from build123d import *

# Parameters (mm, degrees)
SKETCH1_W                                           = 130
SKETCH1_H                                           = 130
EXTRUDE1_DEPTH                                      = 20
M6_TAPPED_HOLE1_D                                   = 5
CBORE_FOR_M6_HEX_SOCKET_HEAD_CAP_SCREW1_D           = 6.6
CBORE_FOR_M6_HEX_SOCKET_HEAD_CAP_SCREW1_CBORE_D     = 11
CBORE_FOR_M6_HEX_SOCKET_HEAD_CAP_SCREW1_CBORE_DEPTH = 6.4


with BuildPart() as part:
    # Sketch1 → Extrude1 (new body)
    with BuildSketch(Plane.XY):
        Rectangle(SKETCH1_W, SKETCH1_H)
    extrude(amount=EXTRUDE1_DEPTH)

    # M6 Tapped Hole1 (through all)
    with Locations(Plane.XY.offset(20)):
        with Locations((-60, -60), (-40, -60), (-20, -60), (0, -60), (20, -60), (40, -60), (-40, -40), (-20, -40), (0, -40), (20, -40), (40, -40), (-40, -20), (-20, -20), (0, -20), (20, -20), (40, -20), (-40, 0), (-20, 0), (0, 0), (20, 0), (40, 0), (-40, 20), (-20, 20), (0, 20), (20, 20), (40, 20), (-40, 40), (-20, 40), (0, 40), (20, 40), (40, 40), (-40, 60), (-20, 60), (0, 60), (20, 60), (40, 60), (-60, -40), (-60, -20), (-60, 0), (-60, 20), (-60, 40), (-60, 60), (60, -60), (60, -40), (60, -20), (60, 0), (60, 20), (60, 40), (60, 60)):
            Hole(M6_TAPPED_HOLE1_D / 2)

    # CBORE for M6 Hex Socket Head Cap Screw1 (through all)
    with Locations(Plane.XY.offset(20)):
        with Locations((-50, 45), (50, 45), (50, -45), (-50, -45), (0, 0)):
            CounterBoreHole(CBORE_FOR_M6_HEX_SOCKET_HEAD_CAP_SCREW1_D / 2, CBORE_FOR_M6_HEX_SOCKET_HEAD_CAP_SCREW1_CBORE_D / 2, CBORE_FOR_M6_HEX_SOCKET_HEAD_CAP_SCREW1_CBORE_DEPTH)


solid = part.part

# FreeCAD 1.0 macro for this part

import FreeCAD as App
import Part
import Sketcher
from FreeCAD import Vector
Q = App.Units.Quantity


def add_polygon(sketch, points):
    """Adds a closed chain of lines whose ends are joined by coincident constraints."""
    first, n = sketch.GeometryCount, len(points)
    for a, b in zip(points, points[1:] + points[:1]):
        sketch.addGeometry(Part.LineSegment(App.Vector(*a, 0), App.Vector(*b, 0)), False)
    for i in range(n):
        sketch.addConstraint(Sketcher.Constraint("Coincident", first + i, 2, first + (i + 1) % n, 1))

doc = App.newDocument("Part")
params = doc.addObject("Spreadsheet::Sheet", "Params")
for row, (alias, value) in enumerate([
    ("sketch1_width", "130 mm"),
    ("pad1_length", "20 mm"),
    ("sketch2_diameter", "5 mm"),
    ("hole_diameter", "5 mm"),
    ("sketch3_diameter", "6.6 mm"),
    ("hole2_diameter", "6.6 mm"),
    ("hole2_cbore_diameter", "11 mm"),
    ("hole2_cbore_depth", "6.4 mm"),
], start=1):
    params.set(f"A{row}", alias)
    params.set(f"B{row}", "=" + value)
    params.setAlias(f"B{row}", alias)

body = doc.addObject("PartDesign::Body", "Body")

# Sketch on XY plane
sketch1 = body.newObject("Sketcher::SketchObject", "Sketch")
sketch1.AttachmentSupport = (doc.getObject("XY_Plane"), [""])
sketch1.MapMode = "FlatFace"
add_polygon(sketch1, [(-65, 65), (-65, -65), (65, -65), (65, 65)])  # lines 0-3
sketch1.addConstraint([
    Sketcher.Constraint("Vertical", 0),
    Sketcher.Constraint("Horizontal", 1),
    Sketcher.Constraint("Vertical", 2),
    Sketcher.Constraint("Horizontal", 3),
    Sketcher.Constraint("Symmetric", 0, 2, 2, 2, -1, 1),
    Sketcher.Constraint("Equal", 3, 0),
    Sketcher.Constraint("DistanceX", 1, 1, 1, 2, Q("130 mm")),
])
sketch1.setExpression("Constraints[10]", "Params.sketch1_width")
pad1 = body.newObject("PartDesign::Pad", "Pad")
pad1.Profile = sketch1
pad1.setExpression("Length", "Params.pad1_length")

# Sketch on XY plane
sketch2 = body.newObject("Sketcher::SketchObject", "Sketch001")
sketch2.AttachmentSupport = (doc.getObject("XY_Plane"), [""])
sketch2.MapMode = "FlatFace"
sketch2.AttachmentOffset = App.Placement(Vector(0, 0, 20), App.Rotation())
sketch2.addGeometry([
    Part.Circle(Vector(-60, -60, 0), Vector(0, 0, 1), 2.5),  # 0
    Part.Circle(Vector(-40, -60, 0), Vector(0, 0, 1), 2.5),  # 1
    Part.Circle(Vector(-20, -60, 0), Vector(0, 0, 1), 2.5),  # 2
    Part.Circle(Vector(0, -60, 0), Vector(0, 0, 1), 2.5),  # 3
    Part.Circle(Vector(20, -60, 0), Vector(0, 0, 1), 2.5),  # 4
    Part.Circle(Vector(40, -60, 0), Vector(0, 0, 1), 2.5),  # 5
    Part.Circle(Vector(-40, -40, 0), Vector(0, 0, 1), 2.5),  # 6
    Part.Circle(Vector(-20, -40, 0), Vector(0, 0, 1), 2.5),  # 7
    Part.Circle(Vector(0, -40, 0), Vector(0, 0, 1), 2.5),  # 8
    Part.Circle(Vector(20, -40, 0), Vector(0, 0, 1), 2.5),  # 9
    Part.Circle(Vector(40, -40, 0), Vector(0, 0, 1), 2.5),  # 10
    Part.Circle(Vector(-40, -20, 0), Vector(0, 0, 1), 2.5),  # 11
    Part.Circle(Vector(-20, -20, 0), Vector(0, 0, 1), 2.5),  # 12
    Part.Circle(Vector(0, -20, 0), Vector(0, 0, 1), 2.5),  # 13
    Part.Circle(Vector(20, -20, 0), Vector(0, 0, 1), 2.5),  # 14
    Part.Circle(Vector(40, -20, 0), Vector(0, 0, 1), 2.5),  # 15
    Part.Circle(Vector(-40, 0, 0), Vector(0, 0, 1), 2.5),  # 16
    Part.Circle(Vector(-20, 0, 0), Vector(0, 0, 1), 2.5),  # 17
    Part.Circle(Vector(0, 0, 0), Vector(0, 0, 1), 2.5),  # 18
    Part.Circle(Vector(20, 0, 0), Vector(0, 0, 1), 2.5),  # 19
    Part.Circle(Vector(40, 0, 0), Vector(0, 0, 1), 2.5),  # 20
    Part.Circle(Vector(-40, 20, 0), Vector(0, 0, 1), 2.5),  # 21
    Part.Circle(Vector(-20, 20, 0), Vector(0, 0, 1), 2.5),  # 22
    Part.Circle(Vector(0, 20, 0), Vector(0, 0, 1), 2.5),  # 23
    Part.Circle(Vector(20, 20, 0), Vector(0, 0, 1), 2.5),  # 24
    Part.Circle(Vector(40, 20, 0), Vector(0, 0, 1), 2.5),  # 25
    Part.Circle(Vector(-40, 40, 0), Vector(0, 0, 1), 2.5),  # 26
    Part.Circle(Vector(-20, 40, 0), Vector(0, 0, 1), 2.5),  # 27
    Part.Circle(Vector(0, 40, 0), Vector(0, 0, 1), 2.5),  # 28
    Part.Circle(Vector(20, 40, 0), Vector(0, 0, 1), 2.5),  # 29
    Part.Circle(Vector(40, 40, 0), Vector(0, 0, 1), 2.5),  # 30
    Part.Circle(Vector(-40, 60, 0), Vector(0, 0, 1), 2.5),  # 31
    Part.Circle(Vector(-20, 60, 0), Vector(0, 0, 1), 2.5),  # 32
    Part.Circle(Vector(0, 60, 0), Vector(0, 0, 1), 2.5),  # 33
    Part.Circle(Vector(20, 60, 0), Vector(0, 0, 1), 2.5),  # 34
    Part.Circle(Vector(40, 60, 0), Vector(0, 0, 1), 2.5),  # 35
    Part.Circle(Vector(-60, -40, 0), Vector(0, 0, 1), 2.5),  # 36
    Part.Circle(Vector(-60, -20, 0), Vector(0, 0, 1), 2.5),  # 37
    Part.Circle(Vector(-60, 0, 0), Vector(0, 0, 1), 2.5),  # 38
    Part.Circle(Vector(-60, 20, 0), Vector(0, 0, 1), 2.5),  # 39
    Part.Circle(Vector(-60, 40, 0), Vector(0, 0, 1), 2.5),  # 40
    Part.Circle(Vector(-60, 60, 0), Vector(0, 0, 1), 2.5),  # 41
    Part.Circle(Vector(60, -60, 0), Vector(0, 0, 1), 2.5),  # 42
    Part.Circle(Vector(60, -40, 0), Vector(0, 0, 1), 2.5),  # 43
    Part.Circle(Vector(60, -20, 0), Vector(0, 0, 1), 2.5),  # 44
    Part.Circle(Vector(60, 0, 0), Vector(0, 0, 1), 2.5),  # 45
    Part.Circle(Vector(60, 20, 0), Vector(0, 0, 1), 2.5),  # 46
    Part.Circle(Vector(60, 40, 0), Vector(0, 0, 1), 2.5),  # 47
    Part.Circle(Vector(60, 60, 0), Vector(0, 0, 1), 2.5),  # 48
], False)
sketch2.addConstraint([
    Sketcher.Constraint("Coincident", 18, 3, -1, 1),
    Sketcher.Constraint("Equal", 0, 1),
    Sketcher.Constraint("Equal", 1, 2),
    Sketcher.Constraint("Equal", 2, 3),
    Sketcher.Constraint("Equal", 3, 4),
    Sketcher.Constraint("Equal", 4, 5),
    Sketcher.Constraint("Equal", 5, 6),
    Sketcher.Constraint("Equal", 6, 7),
    Sketcher.Constraint("Equal", 7, 8),
    Sketcher.Constraint("Equal", 8, 9),
    Sketcher.Constraint("Equal", 9, 10),
    Sketcher.Constraint("Equal", 10, 11),
    Sketcher.Constraint("Equal", 11, 12),
    Sketcher.Constraint("Equal", 12, 13),
    Sketcher.Constraint("Equal", 13, 14),
    Sketcher.Constraint("Equal", 14, 15),
    Sketcher.Constraint("Equal", 15, 16),
    Sketcher.Constraint("Equal", 16, 17),
    Sketcher.Constraint("Equal", 17, 18),
    Sketcher.Constraint("Equal", 18, 19),
    Sketcher.Constraint("Equal", 19, 20),
    Sketcher.Constraint("Equal", 20, 21),
    Sketcher.Constraint("Equal", 21, 22),
    Sketcher.Constraint("Equal", 22, 23),
    Sketcher.Constraint("Equal", 23, 24),
    Sketcher.Constraint("Equal", 24, 25),
    Sketcher.Constraint("Equal", 25, 26),
    Sketcher.Constraint("Equal", 26, 27),
    Sketcher.Constraint("Equal", 27, 28),
    Sketcher.Constraint("Equal", 28, 29),
    Sketcher.Constraint("Equal", 29, 30),
    Sketcher.Constraint("Equal", 30, 31),
    Sketcher.Constraint("Equal", 31, 32),
    Sketcher.Constraint("Equal", 32, 33),
    Sketcher.Constraint("Equal", 33, 34),
    Sketcher.Constraint("Equal", 34, 35),
    Sketcher.Constraint("Equal", 35, 36),
    Sketcher.Constraint("Equal", 36, 37),
    Sketcher.Constraint("Equal", 37, 38),
    Sketcher.Constraint("Equal", 38, 39),
    Sketcher.Constraint("Equal", 39, 40),
    Sketcher.Constraint("Equal", 40, 41),
    Sketcher.Constraint("Equal", 41, 42),
    Sketcher.Constraint("Equal", 42, 43),
    Sketcher.Constraint("Equal", 43, 44),
    Sketcher.Constraint("Equal", 44, 45),
    Sketcher.Constraint("Equal", 45, 46),
    Sketcher.Constraint("Equal", 46, 47),
    Sketcher.Constraint("Equal", 47, 48),
    Sketcher.Constraint("Symmetric", 17, 3, 19, 3, -1, 1),
    Sketcher.Constraint("Symmetric", 16, 3, 20, 3, -1, 1),
    Sketcher.Constraint("Symmetric", 15, 3, 21, 3, -1, 1),
    Sketcher.Constraint("Symmetric", 14, 3, 22, 3, -1, 1),
    Sketcher.Constraint("Symmetric", 13, 3, 23, 3, -1, 1),
    Sketcher.Constraint("Symmetric", 12, 3, 24, 3, -1, 1),
    Sketcher.Constraint("Symmetric", 11, 3, 25, 3, -1, 1),
    Sketcher.Constraint("Symmetric", 10, 3, 26, 3, -1, 1),
    Sketcher.Constraint("Symmetric", 9, 3, 27, 3, -1, 1),
    Sketcher.Constraint("Symmetric", 8, 3, 28, 3, -1, 1),
    Sketcher.Constraint("Symmetric", 7, 3, 29, 3, -1, 1),
    Sketcher.Constraint("Symmetric", 6, 3, 30, 3, -1, 1),
    Sketcher.Constraint("Symmetric", 5, 3, 31, 3, -1, 1),
    Sketcher.Constraint("Symmetric", 4, 3, 32, 3, -1, 1),
    Sketcher.Constraint("Symmetric", 3, 3, 33, 3, -1, 1),
    Sketcher.Constraint("Symmetric", 2, 3, 34, 3, -1, 1),
    Sketcher.Constraint("Symmetric", 1, 3, 35, 3, -1, 1),
    Sketcher.Constraint("Symmetric", 41, 3, 42, 3, -1, 1),
    Sketcher.Constraint("Symmetric", 40, 3, 43, 3, -1, 1),
    Sketcher.Constraint("Symmetric", 39, 3, 44, 3, -1, 1),
    Sketcher.Constraint("Symmetric", 38, 3, 45, 3, -1, 1),
    Sketcher.Constraint("Symmetric", 37, 3, 46, 3, -1, 1),
    Sketcher.Constraint("Symmetric", 36, 3, 47, 3, -1, 1),
    Sketcher.Constraint("Symmetric", 0, 3, 48, 3, -1, 1),
    Sketcher.Constraint("Symmetric", 2, 3, 4, 3, -2),
    Sketcher.Constraint("Symmetric", 1, 3, 5, 3, -2),
    Sketcher.Constraint("Symmetric", 7, 3, 9, 3, -2),
    Sketcher.Constraint("Symmetric", 6, 3, 10, 3, -2),
    Sketcher.Constraint("Symmetric", 12, 3, 14, 3, -2),
    Sketcher.Constraint("Symmetric", 11, 3, 15, 3, -2),
    Sketcher.Constraint("Symmetric", 0, 3, 42, 3, -2),
    Sketcher.Constraint("Symmetric", 36, 3, 43, 3, -2),
    Sketcher.Constraint("Symmetric", 37, 3, 44, 3, -2),
    Sketcher.Constraint("PointOnObject", 3, 3, -2),
    Sketcher.Constraint("PointOnObject", 8, 3, -2),
    Sketcher.Constraint("PointOnObject", 13, 3, -2),
    Sketcher.Constraint("PointOnObject", 16, 3, -1),
    Sketcher.Constraint("PointOnObject", 17, 3, -1),
    Sketcher.Constraint("PointOnObject", 38, 3, -1),
    Sketcher.Constraint("Horizontal", 0, 3, 1, 3),
    Sketcher.Constraint("Horizontal", 1, 3, 2, 3),
    Sketcher.Constraint("Horizontal", 2, 3, 3, 3),
    Sketcher.Constraint("Horizontal", 6, 3, 7, 3),
    Sketcher.Constraint("Horizontal", 7, 3, 8, 3),
    Sketcher.Constraint("Horizontal", 11, 3, 12, 3),
    Sketcher.Constraint("Horizontal", 12, 3, 13, 3),
    Sketcher.Constraint("Horizontal", 10, 3, 36, 3),
    Sketcher.Constraint("Horizontal", 15, 3, 37, 3),
    Sketcher.Constraint("Vertical", 1, 3, 6, 3),
    Sketcher.Constraint("Vertical", 2, 3, 7, 3),
    Sketcher.Constraint("Vertical", 6, 3, 11, 3),
    Sketcher.Constraint("Vertical", 7, 3, 12, 3),
    Sketcher.Constraint("Vertical", 11, 3, 16, 3),
    Sketcher.Constraint("Vertical", 12, 3, 17, 3),
    Sketcher.Constraint("Vertical", 0, 3, 36, 3),
    Sketcher.Constraint("Vertical", 36, 3, 37, 3),
    Sketcher.Constraint("Vertical", 37, 3, 38, 3),
    Sketcher.Constraint("Diameter", 0, Q("5 mm")),
    Sketcher.Constraint("DistanceX", 0, 3, -1, 1, Q("60 mm")),
    Sketcher.Constraint("DistanceY", 0, 3, -1, 1, Q("60 mm")),
    Sketcher.Constraint("DistanceX", 1, 3, -1, 1, Q("40 mm")),
    Sketcher.Constraint("DistanceX", 2, 3, -1, 1, Q("20 mm")),
    Sketcher.Constraint("DistanceY", 6, 3, -1, 1, Q("40 mm")),
    Sketcher.Constraint("DistanceY", 11, 3, -1, 1, Q("20 mm")),
])
sketch2.setExpression("Constraints[106]", "Params.sketch2_diameter")
doc.recompute()
hole = body.newObject("PartDesign::Hole", "Hole")
hole.Profile = sketch2
hole.ThreadType = "None"
hole.setExpression("Diameter", "Params.hole_diameter")
hole.DepthType = "ThroughAll"

# Sketch on XY plane
sketch3 = body.newObject("Sketcher::SketchObject", "Sketch002")
sketch3.AttachmentSupport = (doc.getObject("XY_Plane"), [""])
sketch3.MapMode = "FlatFace"
sketch3.AttachmentOffset = App.Placement(Vector(0, 0, 20), App.Rotation())
sketch3.addGeometry([
    Part.Circle(Vector(-50, 45, 0), Vector(0, 0, 1), 3.3),  # 0
    Part.Circle(Vector(50, 45, 0), Vector(0, 0, 1), 3.3),  # 1
    Part.Circle(Vector(50, -45, 0), Vector(0, 0, 1), 3.3),  # 2
    Part.Circle(Vector(-50, -45, 0), Vector(0, 0, 1), 3.3),  # 3
    Part.Circle(Vector(0, 0, 0), Vector(0, 0, 1), 3.3),  # 4
], False)
sketch3.addConstraint([
    Sketcher.Constraint("Coincident", 4, 3, -1, 1),
    Sketcher.Constraint("Equal", 0, 1),
    Sketcher.Constraint("Equal", 1, 2),
    Sketcher.Constraint("Equal", 2, 3),
    Sketcher.Constraint("Equal", 3, 4),
    Sketcher.Constraint("Symmetric", 0, 3, 2, 3, -1, 1),
    Sketcher.Constraint("Symmetric", 1, 3, 3, 3, -1, 1),
    Sketcher.Constraint("Symmetric", 0, 3, 1, 3, -2),
    Sketcher.Constraint("Diameter", 0, Q("6.6 mm")),
    Sketcher.Constraint("DistanceX", 0, 3, -1, 1, Q("50 mm")),
    Sketcher.Constraint("DistanceY", -1, 1, 0, 3, Q("45 mm")),
])
sketch3.setExpression("Constraints[8]", "Params.sketch3_diameter")
doc.recompute()
hole2 = body.newObject("PartDesign::Hole", "Hole001")
hole2.Profile = sketch3
hole2.ThreadType = "None"
hole2.setExpression("Diameter", "Params.hole2_diameter")
hole2.DepthType = "ThroughAll"
hole2.HoleCutType = "Counterbore"
hole2.setExpression("HoleCutDiameter", "Params.hole2_cbore_diameter")
hole2.setExpression("HoleCutDepth", "Params.hole2_cbore_depth")

doc.recompute()
